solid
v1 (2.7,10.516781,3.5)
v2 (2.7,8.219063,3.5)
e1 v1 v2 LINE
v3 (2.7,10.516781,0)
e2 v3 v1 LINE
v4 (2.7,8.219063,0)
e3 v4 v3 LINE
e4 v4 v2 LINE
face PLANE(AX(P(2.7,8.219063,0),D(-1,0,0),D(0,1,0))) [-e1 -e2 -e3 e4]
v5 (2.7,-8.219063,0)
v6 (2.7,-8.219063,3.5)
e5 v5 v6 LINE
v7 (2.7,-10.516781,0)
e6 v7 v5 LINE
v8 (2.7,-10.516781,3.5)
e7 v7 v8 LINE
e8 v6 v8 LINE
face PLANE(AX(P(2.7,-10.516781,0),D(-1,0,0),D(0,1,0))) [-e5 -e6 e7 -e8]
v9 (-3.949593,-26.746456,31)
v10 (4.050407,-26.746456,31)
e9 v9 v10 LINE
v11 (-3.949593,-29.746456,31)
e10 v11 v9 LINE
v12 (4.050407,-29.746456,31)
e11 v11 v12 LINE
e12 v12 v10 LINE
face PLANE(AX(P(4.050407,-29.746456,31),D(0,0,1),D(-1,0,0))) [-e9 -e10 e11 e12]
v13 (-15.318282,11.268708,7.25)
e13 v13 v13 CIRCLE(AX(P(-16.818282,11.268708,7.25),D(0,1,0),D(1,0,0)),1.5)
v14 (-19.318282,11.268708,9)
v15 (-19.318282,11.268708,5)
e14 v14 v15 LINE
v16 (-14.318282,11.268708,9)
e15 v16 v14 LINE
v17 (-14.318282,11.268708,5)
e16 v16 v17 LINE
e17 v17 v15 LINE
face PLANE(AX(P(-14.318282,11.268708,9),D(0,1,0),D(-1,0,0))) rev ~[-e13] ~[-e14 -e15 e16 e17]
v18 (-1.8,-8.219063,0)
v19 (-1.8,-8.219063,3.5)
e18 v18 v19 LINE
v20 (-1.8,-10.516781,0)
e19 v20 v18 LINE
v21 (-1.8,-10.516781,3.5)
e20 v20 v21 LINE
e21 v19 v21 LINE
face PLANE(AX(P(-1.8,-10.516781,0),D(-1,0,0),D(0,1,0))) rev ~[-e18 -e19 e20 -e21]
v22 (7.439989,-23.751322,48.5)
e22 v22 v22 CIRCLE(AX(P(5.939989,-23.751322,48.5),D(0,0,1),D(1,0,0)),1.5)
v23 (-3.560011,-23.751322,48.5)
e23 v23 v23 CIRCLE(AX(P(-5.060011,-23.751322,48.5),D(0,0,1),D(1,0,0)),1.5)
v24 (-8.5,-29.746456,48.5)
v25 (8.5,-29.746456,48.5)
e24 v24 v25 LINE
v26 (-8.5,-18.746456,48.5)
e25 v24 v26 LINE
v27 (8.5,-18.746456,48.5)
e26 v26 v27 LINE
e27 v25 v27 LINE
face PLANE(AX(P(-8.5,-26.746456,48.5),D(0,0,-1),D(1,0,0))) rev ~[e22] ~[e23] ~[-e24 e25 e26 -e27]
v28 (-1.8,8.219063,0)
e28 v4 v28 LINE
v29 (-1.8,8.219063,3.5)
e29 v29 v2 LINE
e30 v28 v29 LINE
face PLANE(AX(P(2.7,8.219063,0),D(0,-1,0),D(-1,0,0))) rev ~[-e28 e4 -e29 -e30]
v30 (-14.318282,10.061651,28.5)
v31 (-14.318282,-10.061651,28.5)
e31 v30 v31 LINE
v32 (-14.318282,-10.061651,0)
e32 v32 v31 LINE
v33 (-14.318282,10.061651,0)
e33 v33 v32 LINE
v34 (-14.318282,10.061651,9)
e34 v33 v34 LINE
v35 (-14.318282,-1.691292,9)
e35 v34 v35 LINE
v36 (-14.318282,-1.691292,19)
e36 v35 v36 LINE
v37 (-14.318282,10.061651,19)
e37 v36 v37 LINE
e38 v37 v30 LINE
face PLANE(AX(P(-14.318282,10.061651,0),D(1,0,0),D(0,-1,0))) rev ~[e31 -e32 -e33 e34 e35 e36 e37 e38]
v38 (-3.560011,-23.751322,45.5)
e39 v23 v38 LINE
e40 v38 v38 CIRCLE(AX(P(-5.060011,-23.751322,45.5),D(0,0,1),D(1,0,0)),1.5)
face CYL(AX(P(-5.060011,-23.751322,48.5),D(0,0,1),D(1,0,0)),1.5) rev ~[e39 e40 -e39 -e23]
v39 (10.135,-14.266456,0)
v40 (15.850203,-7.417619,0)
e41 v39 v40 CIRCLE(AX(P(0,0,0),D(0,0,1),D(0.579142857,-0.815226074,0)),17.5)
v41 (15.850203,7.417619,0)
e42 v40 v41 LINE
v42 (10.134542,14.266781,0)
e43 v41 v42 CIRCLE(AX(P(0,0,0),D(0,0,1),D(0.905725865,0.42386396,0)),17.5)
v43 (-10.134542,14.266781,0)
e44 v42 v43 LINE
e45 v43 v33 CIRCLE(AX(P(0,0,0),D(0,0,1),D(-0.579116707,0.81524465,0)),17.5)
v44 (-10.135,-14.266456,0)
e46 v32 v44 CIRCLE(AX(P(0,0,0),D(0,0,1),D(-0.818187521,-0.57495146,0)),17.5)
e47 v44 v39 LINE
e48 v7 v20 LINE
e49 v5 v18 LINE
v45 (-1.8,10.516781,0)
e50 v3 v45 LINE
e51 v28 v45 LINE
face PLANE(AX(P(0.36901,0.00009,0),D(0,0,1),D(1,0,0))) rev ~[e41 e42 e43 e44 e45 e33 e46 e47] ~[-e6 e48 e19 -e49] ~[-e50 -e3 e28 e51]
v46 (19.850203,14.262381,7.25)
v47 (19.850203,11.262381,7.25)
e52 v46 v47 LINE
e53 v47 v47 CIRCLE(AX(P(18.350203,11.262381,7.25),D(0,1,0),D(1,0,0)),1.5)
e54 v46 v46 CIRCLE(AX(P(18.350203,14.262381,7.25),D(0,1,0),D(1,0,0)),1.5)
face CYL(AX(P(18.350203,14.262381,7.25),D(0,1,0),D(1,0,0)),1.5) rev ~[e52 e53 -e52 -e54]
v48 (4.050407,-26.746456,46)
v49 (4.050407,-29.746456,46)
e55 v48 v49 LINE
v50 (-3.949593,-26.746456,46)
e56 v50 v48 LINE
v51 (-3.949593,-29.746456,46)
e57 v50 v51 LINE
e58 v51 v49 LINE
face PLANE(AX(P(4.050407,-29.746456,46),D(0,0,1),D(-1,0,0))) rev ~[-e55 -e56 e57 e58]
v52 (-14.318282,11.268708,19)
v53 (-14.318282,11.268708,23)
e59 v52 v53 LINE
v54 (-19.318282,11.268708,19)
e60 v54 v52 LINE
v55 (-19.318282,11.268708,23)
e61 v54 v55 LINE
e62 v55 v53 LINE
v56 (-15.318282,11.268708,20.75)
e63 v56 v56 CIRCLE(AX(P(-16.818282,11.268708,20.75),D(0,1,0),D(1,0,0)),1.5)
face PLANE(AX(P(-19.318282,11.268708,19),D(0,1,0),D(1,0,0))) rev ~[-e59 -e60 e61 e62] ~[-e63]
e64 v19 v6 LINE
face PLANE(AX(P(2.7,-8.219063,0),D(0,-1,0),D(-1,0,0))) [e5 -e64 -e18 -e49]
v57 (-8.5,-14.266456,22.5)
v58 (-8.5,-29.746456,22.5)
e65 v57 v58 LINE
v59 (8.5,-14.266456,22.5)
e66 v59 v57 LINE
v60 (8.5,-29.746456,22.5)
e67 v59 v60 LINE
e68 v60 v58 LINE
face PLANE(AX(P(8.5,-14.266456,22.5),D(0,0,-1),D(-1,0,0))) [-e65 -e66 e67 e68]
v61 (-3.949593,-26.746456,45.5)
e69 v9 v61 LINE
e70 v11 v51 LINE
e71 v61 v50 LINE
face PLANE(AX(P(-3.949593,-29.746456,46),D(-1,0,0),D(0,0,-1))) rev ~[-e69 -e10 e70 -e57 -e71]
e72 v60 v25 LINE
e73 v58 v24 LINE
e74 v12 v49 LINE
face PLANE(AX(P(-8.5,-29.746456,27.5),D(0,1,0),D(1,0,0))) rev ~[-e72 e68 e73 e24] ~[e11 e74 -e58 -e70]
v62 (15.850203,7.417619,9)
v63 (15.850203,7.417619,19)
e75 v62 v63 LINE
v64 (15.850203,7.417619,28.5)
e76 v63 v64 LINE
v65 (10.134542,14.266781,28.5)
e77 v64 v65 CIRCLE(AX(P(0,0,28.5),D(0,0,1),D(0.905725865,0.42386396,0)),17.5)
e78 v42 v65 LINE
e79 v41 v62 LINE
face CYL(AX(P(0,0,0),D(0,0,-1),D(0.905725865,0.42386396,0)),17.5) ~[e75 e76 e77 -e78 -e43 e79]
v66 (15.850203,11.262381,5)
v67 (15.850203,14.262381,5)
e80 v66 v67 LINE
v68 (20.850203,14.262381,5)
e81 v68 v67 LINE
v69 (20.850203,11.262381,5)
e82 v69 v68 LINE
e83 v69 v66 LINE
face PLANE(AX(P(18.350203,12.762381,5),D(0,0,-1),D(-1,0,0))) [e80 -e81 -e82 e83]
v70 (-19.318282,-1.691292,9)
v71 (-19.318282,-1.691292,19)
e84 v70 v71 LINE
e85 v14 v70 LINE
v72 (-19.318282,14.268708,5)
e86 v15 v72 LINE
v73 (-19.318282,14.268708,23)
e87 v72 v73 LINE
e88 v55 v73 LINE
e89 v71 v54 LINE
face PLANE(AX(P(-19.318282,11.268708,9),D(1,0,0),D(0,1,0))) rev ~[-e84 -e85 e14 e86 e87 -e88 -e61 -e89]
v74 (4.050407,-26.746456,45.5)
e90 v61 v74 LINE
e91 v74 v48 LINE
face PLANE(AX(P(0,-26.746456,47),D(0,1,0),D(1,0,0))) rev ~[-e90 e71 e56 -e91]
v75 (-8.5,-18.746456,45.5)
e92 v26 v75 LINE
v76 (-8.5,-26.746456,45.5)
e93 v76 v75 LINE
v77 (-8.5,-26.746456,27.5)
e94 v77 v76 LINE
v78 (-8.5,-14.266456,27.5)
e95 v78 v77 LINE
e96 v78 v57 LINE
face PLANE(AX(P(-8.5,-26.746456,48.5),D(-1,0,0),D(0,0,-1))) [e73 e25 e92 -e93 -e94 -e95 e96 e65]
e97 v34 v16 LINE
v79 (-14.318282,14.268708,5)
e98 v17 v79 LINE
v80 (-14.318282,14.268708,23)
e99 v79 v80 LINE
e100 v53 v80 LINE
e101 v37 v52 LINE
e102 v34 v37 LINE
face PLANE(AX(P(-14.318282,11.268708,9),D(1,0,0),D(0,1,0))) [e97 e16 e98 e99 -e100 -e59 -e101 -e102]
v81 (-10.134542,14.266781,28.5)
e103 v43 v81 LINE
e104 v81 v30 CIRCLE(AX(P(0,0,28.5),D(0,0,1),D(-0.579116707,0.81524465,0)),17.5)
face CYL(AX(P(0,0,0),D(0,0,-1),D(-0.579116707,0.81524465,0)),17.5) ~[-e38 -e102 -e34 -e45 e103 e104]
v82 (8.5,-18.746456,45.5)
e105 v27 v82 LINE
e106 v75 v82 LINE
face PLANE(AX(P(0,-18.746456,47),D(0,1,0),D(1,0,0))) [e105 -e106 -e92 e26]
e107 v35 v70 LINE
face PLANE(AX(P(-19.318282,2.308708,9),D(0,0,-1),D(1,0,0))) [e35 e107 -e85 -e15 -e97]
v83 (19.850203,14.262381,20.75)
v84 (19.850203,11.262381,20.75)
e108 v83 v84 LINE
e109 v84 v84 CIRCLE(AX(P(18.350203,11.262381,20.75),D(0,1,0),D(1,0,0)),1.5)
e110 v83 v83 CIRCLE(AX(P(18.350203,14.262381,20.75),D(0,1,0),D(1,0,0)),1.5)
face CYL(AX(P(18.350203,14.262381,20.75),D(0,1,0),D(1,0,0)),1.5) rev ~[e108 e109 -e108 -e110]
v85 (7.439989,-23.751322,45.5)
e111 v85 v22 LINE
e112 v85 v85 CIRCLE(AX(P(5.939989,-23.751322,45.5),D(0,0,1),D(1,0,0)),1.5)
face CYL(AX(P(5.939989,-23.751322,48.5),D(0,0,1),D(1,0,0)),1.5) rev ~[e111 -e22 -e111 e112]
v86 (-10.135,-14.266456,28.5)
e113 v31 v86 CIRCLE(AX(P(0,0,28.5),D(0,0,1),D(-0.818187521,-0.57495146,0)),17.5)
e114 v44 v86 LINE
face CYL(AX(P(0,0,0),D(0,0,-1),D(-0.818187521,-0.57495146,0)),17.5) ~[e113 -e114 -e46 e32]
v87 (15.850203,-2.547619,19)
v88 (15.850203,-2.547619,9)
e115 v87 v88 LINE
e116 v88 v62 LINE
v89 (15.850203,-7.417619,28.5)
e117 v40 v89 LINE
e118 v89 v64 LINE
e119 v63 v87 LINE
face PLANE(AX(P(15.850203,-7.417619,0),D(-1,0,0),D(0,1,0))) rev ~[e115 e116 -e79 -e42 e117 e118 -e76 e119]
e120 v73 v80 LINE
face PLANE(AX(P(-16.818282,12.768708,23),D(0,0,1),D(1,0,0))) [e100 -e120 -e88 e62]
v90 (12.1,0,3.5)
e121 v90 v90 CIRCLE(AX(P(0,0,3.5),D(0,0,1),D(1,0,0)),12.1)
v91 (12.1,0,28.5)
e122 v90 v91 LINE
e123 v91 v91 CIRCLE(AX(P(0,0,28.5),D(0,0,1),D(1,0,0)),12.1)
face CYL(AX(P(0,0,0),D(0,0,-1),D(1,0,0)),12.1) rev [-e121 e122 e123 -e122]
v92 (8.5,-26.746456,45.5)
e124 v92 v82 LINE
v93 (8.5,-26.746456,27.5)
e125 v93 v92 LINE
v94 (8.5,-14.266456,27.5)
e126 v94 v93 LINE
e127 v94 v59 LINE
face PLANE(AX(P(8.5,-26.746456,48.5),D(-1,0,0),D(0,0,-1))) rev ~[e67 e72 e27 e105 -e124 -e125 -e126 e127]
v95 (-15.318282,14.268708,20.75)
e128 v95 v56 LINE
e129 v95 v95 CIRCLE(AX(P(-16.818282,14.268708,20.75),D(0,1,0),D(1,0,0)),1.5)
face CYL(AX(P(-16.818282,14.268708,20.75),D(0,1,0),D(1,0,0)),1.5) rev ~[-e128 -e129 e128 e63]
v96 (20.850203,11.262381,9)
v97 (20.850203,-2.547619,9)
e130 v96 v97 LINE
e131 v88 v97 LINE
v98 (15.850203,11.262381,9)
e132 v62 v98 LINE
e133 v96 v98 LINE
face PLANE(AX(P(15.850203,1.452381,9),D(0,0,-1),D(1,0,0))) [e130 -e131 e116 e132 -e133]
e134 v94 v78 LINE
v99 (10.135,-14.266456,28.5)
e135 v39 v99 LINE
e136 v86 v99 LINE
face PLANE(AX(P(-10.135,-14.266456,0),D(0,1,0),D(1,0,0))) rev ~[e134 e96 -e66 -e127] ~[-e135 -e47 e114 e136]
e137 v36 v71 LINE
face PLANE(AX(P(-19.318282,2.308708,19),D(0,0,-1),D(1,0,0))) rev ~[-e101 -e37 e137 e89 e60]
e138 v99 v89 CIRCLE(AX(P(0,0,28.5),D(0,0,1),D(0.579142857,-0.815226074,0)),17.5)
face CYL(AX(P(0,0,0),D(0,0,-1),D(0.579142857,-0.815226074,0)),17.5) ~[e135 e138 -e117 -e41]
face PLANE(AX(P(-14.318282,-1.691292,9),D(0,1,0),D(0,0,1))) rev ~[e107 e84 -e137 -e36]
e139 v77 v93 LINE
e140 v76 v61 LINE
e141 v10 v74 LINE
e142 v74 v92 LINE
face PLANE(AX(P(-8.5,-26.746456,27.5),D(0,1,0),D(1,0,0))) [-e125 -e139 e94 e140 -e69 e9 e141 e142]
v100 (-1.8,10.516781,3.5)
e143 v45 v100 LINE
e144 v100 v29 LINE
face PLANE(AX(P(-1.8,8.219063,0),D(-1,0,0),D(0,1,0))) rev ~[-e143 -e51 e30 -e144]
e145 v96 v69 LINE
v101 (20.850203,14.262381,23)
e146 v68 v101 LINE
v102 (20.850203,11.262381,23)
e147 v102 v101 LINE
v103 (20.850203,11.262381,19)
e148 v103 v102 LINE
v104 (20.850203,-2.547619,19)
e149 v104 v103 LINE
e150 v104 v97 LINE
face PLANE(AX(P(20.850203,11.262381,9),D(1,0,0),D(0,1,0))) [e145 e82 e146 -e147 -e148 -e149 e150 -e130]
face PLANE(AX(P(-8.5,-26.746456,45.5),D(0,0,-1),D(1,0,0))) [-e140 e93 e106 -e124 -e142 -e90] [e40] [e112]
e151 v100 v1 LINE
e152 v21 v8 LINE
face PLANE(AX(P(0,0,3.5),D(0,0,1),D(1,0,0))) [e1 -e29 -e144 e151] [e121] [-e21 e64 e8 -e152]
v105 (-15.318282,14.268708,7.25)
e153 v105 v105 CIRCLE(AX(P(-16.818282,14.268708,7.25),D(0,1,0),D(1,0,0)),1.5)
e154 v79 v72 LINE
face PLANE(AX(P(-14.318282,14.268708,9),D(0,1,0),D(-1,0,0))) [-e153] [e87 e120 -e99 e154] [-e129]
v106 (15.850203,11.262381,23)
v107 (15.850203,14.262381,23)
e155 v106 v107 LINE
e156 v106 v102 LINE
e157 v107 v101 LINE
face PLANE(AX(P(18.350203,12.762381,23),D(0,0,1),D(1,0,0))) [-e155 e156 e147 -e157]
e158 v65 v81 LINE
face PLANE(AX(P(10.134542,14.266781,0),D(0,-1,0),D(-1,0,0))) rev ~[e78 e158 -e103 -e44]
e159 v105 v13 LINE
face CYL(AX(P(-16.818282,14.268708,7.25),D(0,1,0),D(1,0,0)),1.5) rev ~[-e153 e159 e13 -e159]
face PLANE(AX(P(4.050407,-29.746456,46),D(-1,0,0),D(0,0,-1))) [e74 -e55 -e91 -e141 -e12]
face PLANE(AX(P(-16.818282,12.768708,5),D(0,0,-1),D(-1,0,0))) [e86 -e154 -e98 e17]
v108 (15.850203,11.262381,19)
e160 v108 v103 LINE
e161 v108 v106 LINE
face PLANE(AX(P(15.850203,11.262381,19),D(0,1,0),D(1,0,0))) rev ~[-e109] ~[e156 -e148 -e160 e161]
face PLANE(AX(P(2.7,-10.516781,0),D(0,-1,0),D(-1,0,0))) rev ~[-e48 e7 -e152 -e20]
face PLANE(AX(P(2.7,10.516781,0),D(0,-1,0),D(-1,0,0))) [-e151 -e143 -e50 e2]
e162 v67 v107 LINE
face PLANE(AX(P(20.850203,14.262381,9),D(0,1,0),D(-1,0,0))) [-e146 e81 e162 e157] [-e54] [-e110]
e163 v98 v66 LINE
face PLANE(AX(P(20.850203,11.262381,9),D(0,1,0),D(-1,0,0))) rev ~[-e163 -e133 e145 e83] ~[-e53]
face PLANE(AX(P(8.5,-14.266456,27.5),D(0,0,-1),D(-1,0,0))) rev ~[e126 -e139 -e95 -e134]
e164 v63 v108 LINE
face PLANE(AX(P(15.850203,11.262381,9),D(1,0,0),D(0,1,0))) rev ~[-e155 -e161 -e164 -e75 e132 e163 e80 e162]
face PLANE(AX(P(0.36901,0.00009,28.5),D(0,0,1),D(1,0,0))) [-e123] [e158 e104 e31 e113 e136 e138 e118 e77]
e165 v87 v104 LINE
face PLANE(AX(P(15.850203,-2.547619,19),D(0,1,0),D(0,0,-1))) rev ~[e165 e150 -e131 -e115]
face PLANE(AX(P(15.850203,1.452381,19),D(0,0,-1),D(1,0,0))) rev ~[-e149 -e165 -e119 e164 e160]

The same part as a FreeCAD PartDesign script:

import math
import FreeCAD as App
import Part
import Sketcher


def add_polygon(sketch, points):
    """Adds a closed chain of lines whose ends are joined by coincident constraints."""
    first, n = sketch.GeometryCount, len(points)
    for a, b in zip(points, points[1:] + points[:1]):
        sketch.addGeometry(Part.LineSegment(App.Vector(*a, 0), App.Vector(*b, 0)), False)
    for i in range(n):
        sketch.addConstraint(Sketcher.Constraint("Coincident", first + i, 2, first + (i + 1) % n, 1))

doc = App.newDocument("Part")
body = doc.addObject("PartDesign::Body", "Body")

# Sketch on XY plane
sketch1 = body.newObject("Sketcher::SketchObject", "Sketch")
sketch1.AttachmentSupport = (doc.getObject("XY_Plane"), [""])
sketch1.MapMode = "FlatFace"
sketch1.addGeometry(Part.Circle(App.Vector(0, 0, 0), App.Vector(0, 0, 1), 12), False)
sketch1.addConstraint(Sketcher.Constraint("Coincident", 0, 3, -1, 1))
sketch1.addConstraint(Sketcher.Constraint("Diameter", 0, 24.2))
pad1 = body.newObject("PartDesign::Pad", "Pad")
pad1.Profile = sketch1
pad1.Length = 3.5

# Sketch on XY plane
sketch2 = body.newObject("Sketcher::SketchObject", "Sketch001")
sketch2.AttachmentSupport = (doc.getObject("XY_Plane"), [""])
sketch2.MapMode = "FlatFace"
sketch2.addGeometry(Part.LineSegment(App.Vector(10, 14, 0), App.Vector(-10, 14, 0)), False)
sketch2.addGeometry(Part.ArcOfCircle(Part.Circle(App.Vector(0, 0, 0), App.Vector(0, 0, 1), 18), math.radians(125.39), math.radians(144.9)), False)
sketch2.addGeometry(Part.LineSegment(App.Vector(-14, 10, 0), App.Vector(-14, -10, 0)), False)
sketch2.addGeometry(Part.ArcOfCircle(Part.Circle(App.Vector(0, 0, 0), App.Vector(0, 0, 1), 17), math.radians(-144.9), math.radians(-125.39)), False)
sketch2.addGeometry(Part.LineSegment(App.Vector(-10, -14, 0), App.Vector(10, -14, 0)), False)
sketch2.addGeometry(Part.ArcOfCircle(Part.Circle(App.Vector(0, 0, 0), App.Vector(0, 0, 1), 18), math.radians(-55), math.radians(-25)), False)
sketch2.addGeometry(Part.LineSegment(App.Vector(16, -7, 0), App.Vector(16, 7, 0)), False)
sketch2.addGeometry(Part.ArcOfCircle(Part.Circle(App.Vector(0, 0, 0), App.Vector(0, 0, 1), 18), math.radians(25), math.radians(55)), False)
sketch2.addGeometry(Part.Circle(App.Vector(0, 0, 0), App.Vector(0, 0, 1), 12), False)
sketch2.addConstraint(Sketcher.Constraint("Coincident", 0, 2, 1, 1))
sketch2.addConstraint(Sketcher.Constraint("Coincident", 1, 2, 2, 1))
sketch2.addConstraint(Sketcher.Constraint("Coincident", 2, 2, 3, 1))
sketch2.addConstraint(Sketcher.Constraint("Coincident", 3, 2, 4, 1))
sketch2.addConstraint(Sketcher.Constraint("Coincident", 4, 2, 5, 1))
sketch2.addConstraint(Sketcher.Constraint("Coincident", 5, 2, 6, 1))
sketch2.addConstraint(Sketcher.Constraint("Coincident", 6, 2, 7, 1))
sketch2.addConstraint(Sketcher.Constraint("Coincident", 7, 2, 0, 1))
sketch2.addConstraint(Sketcher.Constraint("Horizontal", 0))
sketch2.addConstraint(Sketcher.Constraint("Vertical", 2))
sketch2.addConstraint(Sketcher.Constraint("Horizontal", 4))
sketch2.addConstraint(Sketcher.Constraint("Vertical", 6))
sketch2.addConstraint(Sketcher.Constraint("Coincident", 1, 3, -1, 1))
sketch2.addConstraint(Sketcher.Constraint("Coincident", 3, 3, -1, 1))
sketch2.addConstraint(Sketcher.Constraint("Coincident", 5, 3, -1, 1))
sketch2.addConstraint(Sketcher.Constraint("Coincident", 7, 3, -1, 1))
sketch2.addConstraint(Sketcher.Constraint("Coincident", 8, 3, -1, 1))
sketch2.addConstraint(Sketcher.Constraint("Equal", 1, 3))
sketch2.addConstraint(Sketcher.Constraint("Equal", 3, 5))
sketch2.addConstraint(Sketcher.Constraint("Equal", 5, 7))
sketch2.addConstraint(Sketcher.Constraint("Diameter", 8, 24.2))
sketch2.addConstraint(Sketcher.Constraint("Radius", 1, 17.5))
sketch2.addConstraint(Sketcher.Constraint("DistanceX", 4, 1, 4, 2, 20.27))
sketch2.addConstraint(Sketcher.Constraint("DistanceY", 2, 2, 2, 1, 20.123301))
sketch2.addConstraint(Sketcher.Constraint("DistanceY", 6, 1, 6, 2, 14.835239))
sketch2.addConstraint(Sketcher.Constraint("DistanceX", 0, 2, 0, 1, 20.269085))
pad2 = body.newObject("PartDesign::Pad", "Pad001")
pad2.Profile = sketch2
pad2.Length = 28.5

# Sketch on XY plane
sketch3 = body.newObject("Sketcher::SketchObject", "Sketch002")
sketch3.AttachmentSupport = (doc.getObject("XY_Plane"), [""])
sketch3.MapMode = "FlatFace"
add_polygon(sketch3, [(2.7, 10.5), (2.7, 8.2), (-1.8, 8.2), (-1.8, 10.5)])  # lines 0-3
add_polygon(sketch3, [(2.7, -8.2), (2.7, -10.5), (-1.8, -10.5), (-1.8, -8.2)])  # lines 4-7
sketch3.addConstraint(Sketcher.Constraint("Vertical", 0))
sketch3.addConstraint(Sketcher.Constraint("Horizontal", 1))
sketch3.addConstraint(Sketcher.Constraint("Vertical", 2))
sketch3.addConstraint(Sketcher.Constraint("Horizontal", 3))
sketch3.addConstraint(Sketcher.Constraint("Vertical", 4))
sketch3.addConstraint(Sketcher.Constraint("Horizontal", 5))
sketch3.addConstraint(Sketcher.Constraint("Vertical", 6))
sketch3.addConstraint(Sketcher.Constraint("Horizontal", 7))
sketch3.addConstraint(Sketcher.Constraint("Symmetric", 3, 2, 4, 2, -1))
sketch3.addConstraint(Sketcher.Constraint("Symmetric", 1, 2, 6, 2, -1))
sketch3.addConstraint(Sketcher.Constraint("DistanceX", 1, 2, 1, 1, 4.5))
sketch3.addConstraint(Sketcher.Constraint("DistanceX", -1, 1, 0, 2, 2.7))
sketch3.addConstraint(Sketcher.Constraint("DistanceY", 0, 2, 0, 1, 2.297718))
sketch3.addConstraint(Sketcher.Constraint("DistanceY", -1, 1, 2, 2, 10.516781))
pocket1 = body.newObject("PartDesign::Pocket", "Pocket")
pocket1.Profile = sketch3
pocket1.Type = "ThroughAll"
pocket1.Midplane = True

# Sketch on XZ plane
sketch4 = body.newObject("Sketcher::SketchObject", "Sketch003")
sketch4.AttachmentSupport = (doc.getObject("XZ_Plane"), [""])
sketch4.MapMode = "FlatFace"
sketch4.AttachmentOffset = App.Placement(App.Vector(0, 0, 14.266456), App.Rotation())
add_polygon(sketch4, [(8, 22), (8, 28), (-8, 28), (-8, 22)])  # lines 0-3
sketch4.addConstraint(Sketcher.Constraint("Vertical", 0))
sketch4.addConstraint(Sketcher.Constraint("Horizontal", 1))
sketch4.addConstraint(Sketcher.Constraint("Vertical", 2))
sketch4.addConstraint(Sketcher.Constraint("Horizontal", 3))
sketch4.addConstraint(Sketcher.Constraint("DistanceX", 1, 2, 1, 1, 17.0))
sketch4.addConstraint(Sketcher.Constraint("DistanceY", 0, 1, 0, 2, 5.0))
sketch4.addConstraint(Sketcher.Constraint("DistanceX", -1, 1, 0, 2, 8.5))
sketch4.addConstraint(Sketcher.Constraint("DistanceY", -1, 1, 0, 2, 27.5))
pad3 = body.newObject("PartDesign::Pad", "Pad002")
pad3.Profile = sketch4
pad3.Length = 15.48

# Sketch on XY plane
sketch5 = body.newObject("Sketcher::SketchObject", "Sketch004")
sketch5.AttachmentSupport = (doc.getObject("XY_Plane"), [""])
sketch5.MapMode = "FlatFace"
sketch5.AttachmentOffset = App.Placement(App.Vector(0, 0, 27.5), App.Rotation())
add_polygon(sketch5, [(-8.5, -26.7), (-8.5, -29.7), (8.5, -29.7), (8.5, -26.7)])  # lines 0-3
sketch5.addConstraint(Sketcher.Constraint("Vertical", 0))
sketch5.addConstraint(Sketcher.Constraint("Horizontal", 1))
sketch5.addConstraint(Sketcher.Constraint("Vertical", 2))
sketch5.addConstraint(Sketcher.Constraint("Horizontal", 3))
sketch5.addConstraint(Sketcher.Constraint("DistanceX", 1, 1, 1, 2, 17.0))
sketch5.addConstraint(Sketcher.Constraint("DistanceY", 0, 2, 0, 1, 3.0))
sketch5.addConstraint(Sketcher.Constraint("DistanceX", 0, 2, -1, 1, 8.5))
sketch5.addConstraint(Sketcher.Constraint("DistanceY", 0, 2, -1, 1, 29.746456))
pad4 = body.newObject("PartDesign::Pad", "Pad003")
pad4.Profile = sketch5
pad4.Length = 21

# Sketch on XZ plane
sketch6 = body.newObject("Sketcher::SketchObject", "Sketch005")
sketch6.AttachmentSupport = (doc.getObject("XZ_Plane"), [""])
sketch6.MapMode = "FlatFace"
sketch6.AttachmentOffset = App.Placement(App.Vector(0, 0, 29.746456), App.Rotation())
add_polygon(sketch6, [(4, 31), (4, 46), (-4, 46), (-4, 31)])  # lines 0-3
sketch6.addConstraint(Sketcher.Constraint("Vertical", 0))
sketch6.addConstraint(Sketcher.Constraint("Horizontal", 1))
sketch6.addConstraint(Sketcher.Constraint("Vertical", 2))
sketch6.addConstraint(Sketcher.Constraint("Horizontal", 3))
sketch6.addConstraint(Sketcher.Constraint("DistanceX", 1, 2, 1, 1, 8.0))
sketch6.addConstraint(Sketcher.Constraint("DistanceY", 0, 1, 0, 2, 15.0))
sketch6.addConstraint(Sketcher.Constraint("DistanceY", -1, 1, 0, 2, 46.0))
sketch6.addConstraint(Sketcher.Constraint("DistanceX", -1, 1, 0, 2, 4.050407))
pocket2 = body.newObject("PartDesign::Pocket", "Pocket001")
pocket2.Profile = sketch6
pocket2.Length = 10
pocket2.Midplane = True

# Sketch on XZ plane
sketch7 = body.newObject("Sketcher::SketchObject", "Sketch006")
sketch7.AttachmentSupport = (doc.getObject("XZ_Plane"), [""])
sketch7.MapMode = "FlatFace"
sketch7.AttachmentOffset = App.Placement(App.Vector(0, 0, 26.746456), App.Rotation())
add_polygon(sketch7, [(-8.5, 45.5), (-8.5, 48.5), (8.5, 48.5), (8.5, 45.5)])  # lines 0-3
sketch7.addConstraint(Sketcher.Constraint("Vertical", 0))
sketch7.addConstraint(Sketcher.Constraint("Horizontal", 1))
sketch7.addConstraint(Sketcher.Constraint("Vertical", 2))
sketch7.addConstraint(Sketcher.Constraint("Horizontal", 3))
sketch7.addConstraint(Sketcher.Constraint("DistanceX", 1, 1, 1, 2, 17.0))
sketch7.addConstraint(Sketcher.Constraint("DistanceY", 0, 1, 0, 2, 3.0))
sketch7.addConstraint(Sketcher.Constraint("DistanceX", 0, 2, -1, 1, 8.5))
sketch7.addConstraint(Sketcher.Constraint("DistanceY", -1, 1, 0, 2, 48.5))
pad5 = body.newObject("PartDesign::Pad", "Pad004")
pad5.Profile = sketch7
pad5.Length = 8
pad5.Reversed = True

# Sketch on XY plane
sketch8 = body.newObject("Sketcher::SketchObject", "Sketch007")
sketch8.AttachmentSupport = (doc.getObject("XY_Plane"), [""])
sketch8.MapMode = "FlatFace"
sketch8.AttachmentOffset = App.Placement(App.Vector(0, 0, 48.5), App.Rotation())
sketch8.addGeometry(Part.Circle(App.Vector(-5.1, -23.8, 0), App.Vector(0, 0, 1), 1.5), False)
sketch8.addGeometry(Part.Circle(App.Vector(5.9, -23.8, 0), App.Vector(0, 0, 1), 1.5), False)
sketch8.addConstraint(Sketcher.Constraint("Equal", 0, 1))
sketch8.addConstraint(Sketcher.Constraint("Horizontal", 0, 3, 1, 3))
sketch8.addConstraint(Sketcher.Constraint("Diameter", 0, 3.0))
sketch8.addConstraint(Sketcher.Constraint("DistanceX", 0, 3, 1, 3, 11.0))
sketch8.addConstraint(Sketcher.Constraint("DistanceX", 0, 3, -1, 1, 5.060011))
sketch8.addConstraint(Sketcher.Constraint("DistanceY", 0, 3, -1, 1, 23.751322))
pocket3 = body.newObject("PartDesign::Pocket", "Pocket002")
pocket3.Profile = sketch8
pocket3.Length = 8
pocket3.Midplane = True

# Sketch on YZ plane
sketch9 = body.newObject("Sketcher::SketchObject", "Sketch008")
sketch9.AttachmentSupport = (doc.getObject("YZ_Plane"), [""])
sketch9.MapMode = "FlatFace"
sketch9.AttachmentOffset = App.Placement(App.Vector(0, 0, -14.318282), App.Rotation())
add_polygon(sketch9, [(2.3, 9), (-1.7, 9), (-1.7, 19), (2.3, 19)])  # lines 0-3
sketch9.addConstraint(Sketcher.Constraint("Horizontal", 0))
sketch9.addConstraint(Sketcher.Constraint("Vertical", 1))
sketch9.addConstraint(Sketcher.Constraint("Horizontal", 2))
sketch9.addConstraint(Sketcher.Constraint("Vertical", 3))
sketch9.addConstraint(Sketcher.Constraint("DistanceX", 0, 2, 0, 1, 4.0))
sketch9.addConstraint(Sketcher.Constraint("DistanceY", 1, 1, 1, 2, 10.0))
sketch9.addConstraint(Sketcher.Constraint("DistanceY", -1, 1, 0, 2, 9.0))
sketch9.addConstraint(Sketcher.Constraint("DistanceX", 0, 2, -1, 1, 1.691292))
pad6 = body.newObject("PartDesign::Pad", "Pad005")
pad6.Profile = sketch9
pad6.Length = 5
pad6.Reversed = True

# Sketch on XZ plane
sketch10 = body.newObject("Sketcher::SketchObject", "Sketch009")
sketch10.AttachmentSupport = (doc.getObject("XZ_Plane"), [""])
sketch10.MapMode = "FlatFace"
sketch10.AttachmentOffset = App.Placement(App.Vector(0, 0, -2.308708), App.Rotation())
add_polygon(sketch10, [(-19, 9), (-19, 19), (-14, 19), (-14, 9)])  # lines 0-3
sketch10.addConstraint(Sketcher.Constraint("Vertical", 0))
sketch10.addConstraint(Sketcher.Constraint("Horizontal", 1))
sketch10.addConstraint(Sketcher.Constraint("Vertical", 2))
sketch10.addConstraint(Sketcher.Constraint("Horizontal", 3))
sketch10.addConstraint(Sketcher.Constraint("DistanceX", 1, 1, 1, 2, 5.0))
sketch10.addConstraint(Sketcher.Constraint("DistanceY", 0, 1, 0, 2, 10.0))
sketch10.addConstraint(Sketcher.Constraint("DistanceY", -1, 1, 0, 2, 19.0))
sketch10.addConstraint(Sketcher.Constraint("DistanceX", 0, 2, -1, 1, 19.318282))
pad7 = body.newObject("PartDesign::Pad", "Pad006")
pad7.Profile = sketch10
pad7.Length = 11.96
pad7.Reversed = True

# Sketch on XY plane
sketch11 = body.newObject("Sketcher::SketchObject", "Sketch010")
sketch11.AttachmentSupport = (doc.getObject("XY_Plane"), [""])
sketch11.MapMode = "FlatFace"
sketch11.AttachmentOffset = App.Placement(App.Vector(0, 0, 19), App.Rotation())
add_polygon(sketch11, [(-19.3, 14.3), (-19.3, 11.3), (-14.3, 11.3), (-14.3, 14.3)])  # lines 0-3
sketch11.addConstraint(Sketcher.Constraint("Vertical", 0))
sketch11.addConstraint(Sketcher.Constraint("Horizontal", 1))
sketch11.addConstraint(Sketcher.Constraint("Vertical", 2))
sketch11.addConstraint(Sketcher.Constraint("Horizontal", 3))
sketch11.addConstraint(Sketcher.Constraint("DistanceX", 1, 1, 1, 2, 5.0))
sketch11.addConstraint(Sketcher.Constraint("DistanceY", 0, 2, 0, 1, 3.0))
sketch11.addConstraint(Sketcher.Constraint("DistanceX", 0, 2, -1, 1, 19.318282))
sketch11.addConstraint(Sketcher.Constraint("DistanceY", -1, 1, 0, 2, 11.268708))
pad8 = body.newObject("PartDesign::Pad", "Pad007")
pad8.Profile = sketch11
pad8.Length = 4

# Sketch on XY plane
sketch12 = body.newObject("Sketcher::SketchObject", "Sketch011")
sketch12.AttachmentSupport = (doc.getObject("XY_Plane"), [""])
sketch12.MapMode = "FlatFace"
sketch12.AttachmentOffset = App.Placement(App.Vector(0, 0, 9), App.Rotation())
add_polygon(sketch12, [(-14.3, 14.3), (-14.3, 11.3), (-19.3, 11.3), (-19.3, 14.3)])  # lines 0-3
sketch12.addConstraint(Sketcher.Constraint("Vertical", 0))
sketch12.addConstraint(Sketcher.Constraint("Horizontal", 1))
sketch12.addConstraint(Sketcher.Constraint("Vertical", 2))
sketch12.addConstraint(Sketcher.Constraint("Horizontal", 3))
sketch12.addConstraint(Sketcher.Constraint("DistanceX", 1, 2, 1, 1, 5.0))
sketch12.addConstraint(Sketcher.Constraint("DistanceY", 0, 2, 0, 1, 3.0))
sketch12.addConstraint(Sketcher.Constraint("DistanceX", 0, 2, -1, 1, 14.318282))
sketch12.addConstraint(Sketcher.Constraint("DistanceY", -1, 1, 0, 2, 11.268708))
pad9 = body.newObject("PartDesign::Pad", "Pad008")
pad9.Profile = sketch12
pad9.Length = 4
pad9.Reversed = True

# Sketch on YZ plane
sketch13 = body.newObject("Sketcher::SketchObject", "Sketch012")
sketch13.AttachmentSupport = (doc.getObject("YZ_Plane"), [""])
sketch13.MapMode = "FlatFace"
sketch13.AttachmentOffset = App.Placement(App.Vector(0, 0, 15.850203), App.Rotation())
add_polygon(sketch13, [(1.5, 19), (-2.5, 19), (-2.5, 9), (1.5, 9)])  # lines 0-3
sketch13.addConstraint(Sketcher.Constraint("Horizontal", 0))
sketch13.addConstraint(Sketcher.Constraint("Vertical", 1))
sketch13.addConstraint(Sketcher.Constraint("Horizontal", 2))
sketch13.addConstraint(Sketcher.Constraint("Vertical", 3))
sketch13.addConstraint(Sketcher.Constraint("DistanceX", 0, 2, 0, 1, 4.0))
sketch13.addConstraint(Sketcher.Constraint("DistanceY", 1, 2, 1, 1, 10.0))
sketch13.addConstraint(Sketcher.Constraint("DistanceY", -1, 1, 0, 2, 19.0))
sketch13.addConstraint(Sketcher.Constraint("DistanceX", 0, 2, -1, 1, 2.547619))
pad10 = body.newObject("PartDesign::Pad", "Pad009")
pad10.Profile = sketch13
pad10.Length = 5

# Sketch on XZ plane
sketch14 = body.newObject("Sketcher::SketchObject", "Sketch013")
sketch14.AttachmentSupport = (doc.getObject("XZ_Plane"), [""])
sketch14.MapMode = "FlatFace"
sketch14.AttachmentOffset = App.Placement(App.Vector(0, 0, -1.452381), App.Rotation())
add_polygon(sketch14, [(16, 9), (16, 19), (21, 19), (21, 9)])  # lines 0-3
sketch14.addConstraint(Sketcher.Constraint("Vertical", 0))
sketch14.addConstraint(Sketcher.Constraint("Horizontal", 1))
sketch14.addConstraint(Sketcher.Constraint("Vertical", 2))
sketch14.addConstraint(Sketcher.Constraint("Horizontal", 3))
sketch14.addConstraint(Sketcher.Constraint("DistanceX", 1, 1, 1, 2, 5.0))
sketch14.addConstraint(Sketcher.Constraint("DistanceY", 0, 1, 0, 2, 10.0))
sketch14.addConstraint(Sketcher.Constraint("DistanceY", -1, 1, 0, 2, 19.0))
sketch14.addConstraint(Sketcher.Constraint("DistanceX", -1, 1, 0, 2, 15.850203))
pad11 = body.newObject("PartDesign::Pad", "Pad010")
pad11.Profile = sketch14
pad11.Length = 12.81
pad11.Reversed = True

# Sketch on XY plane
sketch15 = body.newObject("Sketcher::SketchObject", "Sketch014")
sketch15.AttachmentSupport = (doc.getObject("XY_Plane"), [""])
sketch15.MapMode = "FlatFace"
sketch15.AttachmentOffset = App.Placement(App.Vector(0, 0, 19), App.Rotation())
add_polygon(sketch15, [(15.9, 14.3), (15.9, 11.3), (20.9, 11.3), (20.9, 14.3)])  # lines 0-3
sketch15.addConstraint(Sketcher.Constraint("Vertical", 0))
sketch15.addConstraint(Sketcher.Constraint("Horizontal", 1))
sketch15.addConstraint(Sketcher.Constraint("Vertical", 2))
sketch15.addConstraint(Sketcher.Constraint("Horizontal", 3))
sketch15.addConstraint(Sketcher.Constraint("DistanceX", 1, 1, 1, 2, 5.0))
sketch15.addConstraint(Sketcher.Constraint("DistanceY", 0, 2, 0, 1, 3.0))
sketch15.addConstraint(Sketcher.Constraint("DistanceY", -1, 1, 0, 2, 11.262381))
sketch15.addConstraint(Sketcher.Constraint("DistanceX", -1, 1, 0, 2, 15.850203))
pad12 = body.newObject("PartDesign::Pad", "Pad011")
pad12.Profile = sketch15
pad12.Length = 4

# Sketch on XY plane
sketch16 = body.newObject("Sketcher::SketchObject", "Sketch015")
sketch16.AttachmentSupport = (doc.getObject("XY_Plane"), [""])
sketch16.MapMode = "FlatFace"
sketch16.AttachmentOffset = App.Placement(App.Vector(0, 0, 9), App.Rotation())
add_polygon(sketch16, [(20.9, 14.3), (20.9, 11.3), (15.9, 11.3), (15.9, 14.3)])  # lines 0-3
sketch16.addConstraint(Sketcher.Constraint("Vertical", 0))
sketch16.addConstraint(Sketcher.Constraint("Horizontal", 1))
sketch16.addConstraint(Sketcher.Constraint("Vertical", 2))
sketch16.addConstraint(Sketcher.Constraint("Horizontal", 3))
sketch16.addConstraint(Sketcher.Constraint("DistanceX", 1, 2, 1, 1, 5.0))
sketch16.addConstraint(Sketcher.Constraint("DistanceY", 0, 2, 0, 1, 3.0))
sketch16.addConstraint(Sketcher.Constraint("DistanceY", -1, 1, 0, 2, 11.262381))
sketch16.addConstraint(Sketcher.Constraint("DistanceX", -1, 1, 0, 2, 20.850203))
pad13 = body.newObject("PartDesign::Pad", "Pad012")
pad13.Profile = sketch16
pad13.Length = 4
pad13.Reversed = True

# Sketch on XZ plane
sketch17 = body.newObject("Sketcher::SketchObject", "Sketch016")
sketch17.AttachmentSupport = (doc.getObject("XZ_Plane"), [""])
sketch17.MapMode = "FlatFace"
sketch17.AttachmentOffset = App.Placement(App.Vector(0, 0, -14.262381), App.Rotation())
sketch17.addGeometry(Part.Circle(App.Vector(18.4, 20.8, 0), App.Vector(0, 0, 1), 1.5), False)
sketch17.addGeometry(Part.Circle(App.Vector(18.4, 7.2, 0), App.Vector(0, 0, 1), 1.5), False)
sketch17.addConstraint(Sketcher.Constraint("Equal", 0, 1))
sketch17.addConstraint(Sketcher.Constraint("Vertical", 0, 3, 1, 3))
sketch17.addConstraint(Sketcher.Constraint("Diameter", 0, 3.0))
sketch17.addConstraint(Sketcher.Constraint("DistanceY", 1, 3, 0, 3, 13.5))
sketch17.addConstraint(Sketcher.Constraint("DistanceY", -1, 1, 0, 3, 20.75))
sketch17.addConstraint(Sketcher.Constraint("DistanceX", -1, 1, 0, 3, 18.350203))
pocket4 = body.newObject("PartDesign::Pocket", "Pocket003")
pocket4.Profile = sketch17
pocket4.Type = "ThroughAll"
pocket4.Midplane = True

# Sketch on XZ plane
sketch18 = body.newObject("Sketcher::SketchObject", "Sketch017")
sketch18.AttachmentSupport = (doc.getObject("XZ_Plane"), [""])
sketch18.MapMode = "FlatFace"
sketch18.AttachmentOffset = App.Placement(App.Vector(0, 0, -14.268708), App.Rotation())
sketch18.addGeometry(Part.Circle(App.Vector(-16.8, 7.2, 0), App.Vector(0, 0, 1), 1.5), False)
sketch18.addGeometry(Part.Circle(App.Vector(-16.8, 20.8, 0), App.Vector(0, 0, 1), 1.5), False)
sketch18.addConstraint(Sketcher.Constraint("Equal", 0, 1))
sketch18.addConstraint(Sketcher.Constraint("Vertical", 0, 3, 1, 3))
sketch18.addConstraint(Sketcher.Constraint("Diameter", 0, 3.0))
sketch18.addConstraint(Sketcher.Constraint("DistanceY", 0, 3, 1, 3, 13.5))
sketch18.addConstraint(Sketcher.Constraint("DistanceY", -1, 1, 0, 3, 7.25))
sketch18.addConstraint(Sketcher.Constraint("DistanceX", 0, 3, -1, 1, 16.818282))
pocket5 = body.newObject("PartDesign::Pocket", "Pocket004")
pocket5.Profile = sketch18
pocket5.Type = "ThroughAll"
pocket5.Midplane = True

doc.recompute()
